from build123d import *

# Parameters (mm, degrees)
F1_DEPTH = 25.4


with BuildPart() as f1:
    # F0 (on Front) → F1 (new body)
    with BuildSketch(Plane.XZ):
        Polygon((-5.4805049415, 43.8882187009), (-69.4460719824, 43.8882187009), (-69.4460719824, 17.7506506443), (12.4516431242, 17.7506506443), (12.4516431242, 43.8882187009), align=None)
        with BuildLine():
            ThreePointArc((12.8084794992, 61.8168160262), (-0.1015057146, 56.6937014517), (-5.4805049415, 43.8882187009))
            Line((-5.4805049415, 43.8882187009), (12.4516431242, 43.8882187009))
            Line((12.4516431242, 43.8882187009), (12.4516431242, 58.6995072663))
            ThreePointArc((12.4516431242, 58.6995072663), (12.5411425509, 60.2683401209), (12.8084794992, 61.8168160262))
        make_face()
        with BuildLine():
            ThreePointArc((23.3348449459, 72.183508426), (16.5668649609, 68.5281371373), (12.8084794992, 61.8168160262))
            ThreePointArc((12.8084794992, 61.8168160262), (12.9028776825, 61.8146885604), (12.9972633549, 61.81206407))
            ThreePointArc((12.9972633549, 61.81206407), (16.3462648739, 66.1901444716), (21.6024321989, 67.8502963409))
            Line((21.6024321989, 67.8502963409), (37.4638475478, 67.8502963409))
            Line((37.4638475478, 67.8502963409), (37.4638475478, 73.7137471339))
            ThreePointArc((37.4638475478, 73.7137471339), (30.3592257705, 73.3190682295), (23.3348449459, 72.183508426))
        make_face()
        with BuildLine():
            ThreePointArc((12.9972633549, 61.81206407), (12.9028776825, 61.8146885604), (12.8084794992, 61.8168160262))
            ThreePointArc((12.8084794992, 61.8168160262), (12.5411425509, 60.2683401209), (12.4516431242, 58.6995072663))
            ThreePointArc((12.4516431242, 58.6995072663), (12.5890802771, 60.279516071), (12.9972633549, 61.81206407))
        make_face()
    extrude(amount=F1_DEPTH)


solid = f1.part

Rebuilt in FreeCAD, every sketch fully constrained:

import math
import FreeCAD as App
import Part
import Sketcher
Q = App.Units.Quantity

doc = App.newDocument("Part")
body = doc.addObject("PartDesign::Body", "Body")

# Sketch on XZ plane
sketch1 = body.newObject("Sketcher::SketchObject", "Sketch")
sketch1.AttachmentSupport = (doc.getObject("XZ_Plane"), [""])
sketch1.MapMode = "FlatFace"
sketch1.addGeometry(Part.LineSegment(App.Vector(-69.446072, 43.888219, 0), App.Vector(-69.446072, 17.750651, 0)), False)
sketch1.addGeometry(Part.LineSegment(App.Vector(-69.446072, 17.750651, 0), App.Vector(12.451643, 17.750651, 0)), False)
sketch1.addGeometry(Part.LineSegment(App.Vector(12.451643, 17.750651, 0), App.Vector(12.451643, 58.699507, 0)), False)
sketch1.addGeometry(Part.ArcOfCircle(Part.Circle(App.Vector(21.602432, 58.699507, 0), App.Vector(0, 0, 1), 9.150789), math.radians(160.114547), math.radians(180)), False)
sketch1.addGeometry(Part.ArcOfCircle(Part.Circle(App.Vector(21.602432, 58.699507, 0), App.Vector(0, 0, 1), 9.150789), math.radians(90), math.radians(160.114547)), False)
sketch1.addGeometry(Part.LineSegment(App.Vector(21.602432, 67.850296, 0), App.Vector(37.463848, 67.850296, 0)), False)
sketch1.addGeometry(Part.LineSegment(App.Vector(37.463848, 67.850296, 0), App.Vector(37.463848, 73.713747, 0)), False)
sketch1.addGeometry(Part.ArcOfCircle(Part.Circle(App.Vector(37.674908, 5.771903, 0), App.Vector(0, 0, 1), 67.942172), math.radians(90.177988), math.radians(102.18464)), False)
sketch1.addGeometry(Part.ArcOfCircle(Part.Circle(App.Vector(26.246406, 58.699507, 0), App.Vector(0, 0, 1), 13.794763), math.radians(102.18464), math.radians(166.939623)), False)
sketch1.addGeometry(Part.ArcOfCircle(Part.Circle(App.Vector(12.451643, 43.888219, 0), App.Vector(0, 0, 1), 17.932148), math.radians(88.859781), math.radians(180)), False)
sketch1.addGeometry(Part.LineSegment(App.Vector(-5.480505, 43.888219, 0), App.Vector(-69.446072, 43.888219, 0)), False)
sketch1.addConstraint(Sketcher.Constraint("Coincident", 0, 2, 1, 1))
sketch1.addConstraint(Sketcher.Constraint("Coincident", 1, 2, 2, 1))
sketch1.addConstraint(Sketcher.Constraint("Coincident", 2, 2, 3, 2))
sketch1.addConstraint(Sketcher.Constraint("Coincident", 3, 1, 4, 2))
sketch1.addConstraint(Sketcher.Constraint("Coincident", 4, 1, 5, 1))
sketch1.addConstraint(Sketcher.Constraint("Coincident", 5, 2, 6, 1))
sketch1.addConstraint(Sketcher.Constraint("Coincident", 6, 2, 7, 1))
sketch1.addConstraint(Sketcher.Constraint("Coincident", 7, 2, 8, 1))
sketch1.addConstraint(Sketcher.Constraint("Coincident", 8, 2, 9, 1))
sketch1.addConstraint(Sketcher.Constraint("Coincident", 9, 2, 10, 1))
sketch1.addConstraint(Sketcher.Constraint("Coincident", 10, 2, 0, 1))
sketch1.addConstraint(Sketcher.Constraint("Vertical", 0))
sketch1.addConstraint(Sketcher.Constraint("Horizontal", 1))
sketch1.addConstraint(Sketcher.Constraint("Vertical", 2))
sketch1.addConstraint(Sketcher.Constraint("Horizontal", 5))
sketch1.addConstraint(Sketcher.Constraint("Vertical", 6))
sketch1.addConstraint(Sketcher.Constraint("Horizontal", 10))
sketch1.addConstraint(Sketcher.Constraint("Coincident", 4, 3, 3, 3))
sketch1.addConstraint(Sketcher.Constraint("Radius", 3, 9.150789))
sketch1.addConstraint(Sketcher.Constraint("Radius", 9, 17.932148))
sketch1.addConstraint(Sketcher.Constraint("Radius", 7, 67.942172))
sketch1.addConstraint(Sketcher.Constraint("Radius", 8, 13.794763))
sketch1.addConstraint(Sketcher.Constraint("DistanceY", 0, 2, 0, 1, 26.137568))
sketch1.addConstraint(Sketcher.Constraint("DistanceY", 6, 1, 6, 2, 5.863451))
sketch1.addConstraint(Sketcher.Constraint("DistanceX", 8, 3, 7, 3, 11.428502))
sketch1.addConstraint(Sketcher.Constraint("DistanceY", 3, 3, 7, 2, 13.484001))
sketch1.addConstraint(Sketcher.Constraint("DistanceX", 1, 1, 1, 2, 81.897715))
sketch1.addConstraint(Sketcher.Constraint("DistanceX", 5, 1, 5, 2, 15.861415))
sketch1.addConstraint(Sketcher.Constraint("DistanceX", 10, 2, 10, 1, 63.965567))
sketch1.addConstraint(Sketcher.Constraint("DistanceY", 2, 1, 2, 2, 40.948857))
sketch1.addConstraint(Sketcher.Constraint("DistanceY", -1, 1, 9, 3, 43.888219))
sketch1.addConstraint(Sketcher.Constraint("DistanceX", 0, 2, -1, 1, 69.446072))
sketch1.addConstraint(Sketcher.Constraint("DistanceY", -1, 1, 0, 2, 17.750651))
sketch1.addConstraint(Sketcher.Constraint("DistanceY", -1, 1, 7, 2, 72.183508))
sketch1.addConstraint(Sketcher.Constraint("DistanceX", -1, 1, 8, 2, 12.808479))
sketch1.addConstraint(Sketcher.Constraint("DistanceX", 2, 2, 3, 1, 0.54562))
sketch1.addConstraint(Sketcher.Constraint("DistanceX", 3, 1, 4, 1, 8.605169))
pad1 = body.newObject("PartDesign::Pad", "Pad")
pad1.Profile = sketch1
pad1.Length = Q("1 in")

doc.recompute()
